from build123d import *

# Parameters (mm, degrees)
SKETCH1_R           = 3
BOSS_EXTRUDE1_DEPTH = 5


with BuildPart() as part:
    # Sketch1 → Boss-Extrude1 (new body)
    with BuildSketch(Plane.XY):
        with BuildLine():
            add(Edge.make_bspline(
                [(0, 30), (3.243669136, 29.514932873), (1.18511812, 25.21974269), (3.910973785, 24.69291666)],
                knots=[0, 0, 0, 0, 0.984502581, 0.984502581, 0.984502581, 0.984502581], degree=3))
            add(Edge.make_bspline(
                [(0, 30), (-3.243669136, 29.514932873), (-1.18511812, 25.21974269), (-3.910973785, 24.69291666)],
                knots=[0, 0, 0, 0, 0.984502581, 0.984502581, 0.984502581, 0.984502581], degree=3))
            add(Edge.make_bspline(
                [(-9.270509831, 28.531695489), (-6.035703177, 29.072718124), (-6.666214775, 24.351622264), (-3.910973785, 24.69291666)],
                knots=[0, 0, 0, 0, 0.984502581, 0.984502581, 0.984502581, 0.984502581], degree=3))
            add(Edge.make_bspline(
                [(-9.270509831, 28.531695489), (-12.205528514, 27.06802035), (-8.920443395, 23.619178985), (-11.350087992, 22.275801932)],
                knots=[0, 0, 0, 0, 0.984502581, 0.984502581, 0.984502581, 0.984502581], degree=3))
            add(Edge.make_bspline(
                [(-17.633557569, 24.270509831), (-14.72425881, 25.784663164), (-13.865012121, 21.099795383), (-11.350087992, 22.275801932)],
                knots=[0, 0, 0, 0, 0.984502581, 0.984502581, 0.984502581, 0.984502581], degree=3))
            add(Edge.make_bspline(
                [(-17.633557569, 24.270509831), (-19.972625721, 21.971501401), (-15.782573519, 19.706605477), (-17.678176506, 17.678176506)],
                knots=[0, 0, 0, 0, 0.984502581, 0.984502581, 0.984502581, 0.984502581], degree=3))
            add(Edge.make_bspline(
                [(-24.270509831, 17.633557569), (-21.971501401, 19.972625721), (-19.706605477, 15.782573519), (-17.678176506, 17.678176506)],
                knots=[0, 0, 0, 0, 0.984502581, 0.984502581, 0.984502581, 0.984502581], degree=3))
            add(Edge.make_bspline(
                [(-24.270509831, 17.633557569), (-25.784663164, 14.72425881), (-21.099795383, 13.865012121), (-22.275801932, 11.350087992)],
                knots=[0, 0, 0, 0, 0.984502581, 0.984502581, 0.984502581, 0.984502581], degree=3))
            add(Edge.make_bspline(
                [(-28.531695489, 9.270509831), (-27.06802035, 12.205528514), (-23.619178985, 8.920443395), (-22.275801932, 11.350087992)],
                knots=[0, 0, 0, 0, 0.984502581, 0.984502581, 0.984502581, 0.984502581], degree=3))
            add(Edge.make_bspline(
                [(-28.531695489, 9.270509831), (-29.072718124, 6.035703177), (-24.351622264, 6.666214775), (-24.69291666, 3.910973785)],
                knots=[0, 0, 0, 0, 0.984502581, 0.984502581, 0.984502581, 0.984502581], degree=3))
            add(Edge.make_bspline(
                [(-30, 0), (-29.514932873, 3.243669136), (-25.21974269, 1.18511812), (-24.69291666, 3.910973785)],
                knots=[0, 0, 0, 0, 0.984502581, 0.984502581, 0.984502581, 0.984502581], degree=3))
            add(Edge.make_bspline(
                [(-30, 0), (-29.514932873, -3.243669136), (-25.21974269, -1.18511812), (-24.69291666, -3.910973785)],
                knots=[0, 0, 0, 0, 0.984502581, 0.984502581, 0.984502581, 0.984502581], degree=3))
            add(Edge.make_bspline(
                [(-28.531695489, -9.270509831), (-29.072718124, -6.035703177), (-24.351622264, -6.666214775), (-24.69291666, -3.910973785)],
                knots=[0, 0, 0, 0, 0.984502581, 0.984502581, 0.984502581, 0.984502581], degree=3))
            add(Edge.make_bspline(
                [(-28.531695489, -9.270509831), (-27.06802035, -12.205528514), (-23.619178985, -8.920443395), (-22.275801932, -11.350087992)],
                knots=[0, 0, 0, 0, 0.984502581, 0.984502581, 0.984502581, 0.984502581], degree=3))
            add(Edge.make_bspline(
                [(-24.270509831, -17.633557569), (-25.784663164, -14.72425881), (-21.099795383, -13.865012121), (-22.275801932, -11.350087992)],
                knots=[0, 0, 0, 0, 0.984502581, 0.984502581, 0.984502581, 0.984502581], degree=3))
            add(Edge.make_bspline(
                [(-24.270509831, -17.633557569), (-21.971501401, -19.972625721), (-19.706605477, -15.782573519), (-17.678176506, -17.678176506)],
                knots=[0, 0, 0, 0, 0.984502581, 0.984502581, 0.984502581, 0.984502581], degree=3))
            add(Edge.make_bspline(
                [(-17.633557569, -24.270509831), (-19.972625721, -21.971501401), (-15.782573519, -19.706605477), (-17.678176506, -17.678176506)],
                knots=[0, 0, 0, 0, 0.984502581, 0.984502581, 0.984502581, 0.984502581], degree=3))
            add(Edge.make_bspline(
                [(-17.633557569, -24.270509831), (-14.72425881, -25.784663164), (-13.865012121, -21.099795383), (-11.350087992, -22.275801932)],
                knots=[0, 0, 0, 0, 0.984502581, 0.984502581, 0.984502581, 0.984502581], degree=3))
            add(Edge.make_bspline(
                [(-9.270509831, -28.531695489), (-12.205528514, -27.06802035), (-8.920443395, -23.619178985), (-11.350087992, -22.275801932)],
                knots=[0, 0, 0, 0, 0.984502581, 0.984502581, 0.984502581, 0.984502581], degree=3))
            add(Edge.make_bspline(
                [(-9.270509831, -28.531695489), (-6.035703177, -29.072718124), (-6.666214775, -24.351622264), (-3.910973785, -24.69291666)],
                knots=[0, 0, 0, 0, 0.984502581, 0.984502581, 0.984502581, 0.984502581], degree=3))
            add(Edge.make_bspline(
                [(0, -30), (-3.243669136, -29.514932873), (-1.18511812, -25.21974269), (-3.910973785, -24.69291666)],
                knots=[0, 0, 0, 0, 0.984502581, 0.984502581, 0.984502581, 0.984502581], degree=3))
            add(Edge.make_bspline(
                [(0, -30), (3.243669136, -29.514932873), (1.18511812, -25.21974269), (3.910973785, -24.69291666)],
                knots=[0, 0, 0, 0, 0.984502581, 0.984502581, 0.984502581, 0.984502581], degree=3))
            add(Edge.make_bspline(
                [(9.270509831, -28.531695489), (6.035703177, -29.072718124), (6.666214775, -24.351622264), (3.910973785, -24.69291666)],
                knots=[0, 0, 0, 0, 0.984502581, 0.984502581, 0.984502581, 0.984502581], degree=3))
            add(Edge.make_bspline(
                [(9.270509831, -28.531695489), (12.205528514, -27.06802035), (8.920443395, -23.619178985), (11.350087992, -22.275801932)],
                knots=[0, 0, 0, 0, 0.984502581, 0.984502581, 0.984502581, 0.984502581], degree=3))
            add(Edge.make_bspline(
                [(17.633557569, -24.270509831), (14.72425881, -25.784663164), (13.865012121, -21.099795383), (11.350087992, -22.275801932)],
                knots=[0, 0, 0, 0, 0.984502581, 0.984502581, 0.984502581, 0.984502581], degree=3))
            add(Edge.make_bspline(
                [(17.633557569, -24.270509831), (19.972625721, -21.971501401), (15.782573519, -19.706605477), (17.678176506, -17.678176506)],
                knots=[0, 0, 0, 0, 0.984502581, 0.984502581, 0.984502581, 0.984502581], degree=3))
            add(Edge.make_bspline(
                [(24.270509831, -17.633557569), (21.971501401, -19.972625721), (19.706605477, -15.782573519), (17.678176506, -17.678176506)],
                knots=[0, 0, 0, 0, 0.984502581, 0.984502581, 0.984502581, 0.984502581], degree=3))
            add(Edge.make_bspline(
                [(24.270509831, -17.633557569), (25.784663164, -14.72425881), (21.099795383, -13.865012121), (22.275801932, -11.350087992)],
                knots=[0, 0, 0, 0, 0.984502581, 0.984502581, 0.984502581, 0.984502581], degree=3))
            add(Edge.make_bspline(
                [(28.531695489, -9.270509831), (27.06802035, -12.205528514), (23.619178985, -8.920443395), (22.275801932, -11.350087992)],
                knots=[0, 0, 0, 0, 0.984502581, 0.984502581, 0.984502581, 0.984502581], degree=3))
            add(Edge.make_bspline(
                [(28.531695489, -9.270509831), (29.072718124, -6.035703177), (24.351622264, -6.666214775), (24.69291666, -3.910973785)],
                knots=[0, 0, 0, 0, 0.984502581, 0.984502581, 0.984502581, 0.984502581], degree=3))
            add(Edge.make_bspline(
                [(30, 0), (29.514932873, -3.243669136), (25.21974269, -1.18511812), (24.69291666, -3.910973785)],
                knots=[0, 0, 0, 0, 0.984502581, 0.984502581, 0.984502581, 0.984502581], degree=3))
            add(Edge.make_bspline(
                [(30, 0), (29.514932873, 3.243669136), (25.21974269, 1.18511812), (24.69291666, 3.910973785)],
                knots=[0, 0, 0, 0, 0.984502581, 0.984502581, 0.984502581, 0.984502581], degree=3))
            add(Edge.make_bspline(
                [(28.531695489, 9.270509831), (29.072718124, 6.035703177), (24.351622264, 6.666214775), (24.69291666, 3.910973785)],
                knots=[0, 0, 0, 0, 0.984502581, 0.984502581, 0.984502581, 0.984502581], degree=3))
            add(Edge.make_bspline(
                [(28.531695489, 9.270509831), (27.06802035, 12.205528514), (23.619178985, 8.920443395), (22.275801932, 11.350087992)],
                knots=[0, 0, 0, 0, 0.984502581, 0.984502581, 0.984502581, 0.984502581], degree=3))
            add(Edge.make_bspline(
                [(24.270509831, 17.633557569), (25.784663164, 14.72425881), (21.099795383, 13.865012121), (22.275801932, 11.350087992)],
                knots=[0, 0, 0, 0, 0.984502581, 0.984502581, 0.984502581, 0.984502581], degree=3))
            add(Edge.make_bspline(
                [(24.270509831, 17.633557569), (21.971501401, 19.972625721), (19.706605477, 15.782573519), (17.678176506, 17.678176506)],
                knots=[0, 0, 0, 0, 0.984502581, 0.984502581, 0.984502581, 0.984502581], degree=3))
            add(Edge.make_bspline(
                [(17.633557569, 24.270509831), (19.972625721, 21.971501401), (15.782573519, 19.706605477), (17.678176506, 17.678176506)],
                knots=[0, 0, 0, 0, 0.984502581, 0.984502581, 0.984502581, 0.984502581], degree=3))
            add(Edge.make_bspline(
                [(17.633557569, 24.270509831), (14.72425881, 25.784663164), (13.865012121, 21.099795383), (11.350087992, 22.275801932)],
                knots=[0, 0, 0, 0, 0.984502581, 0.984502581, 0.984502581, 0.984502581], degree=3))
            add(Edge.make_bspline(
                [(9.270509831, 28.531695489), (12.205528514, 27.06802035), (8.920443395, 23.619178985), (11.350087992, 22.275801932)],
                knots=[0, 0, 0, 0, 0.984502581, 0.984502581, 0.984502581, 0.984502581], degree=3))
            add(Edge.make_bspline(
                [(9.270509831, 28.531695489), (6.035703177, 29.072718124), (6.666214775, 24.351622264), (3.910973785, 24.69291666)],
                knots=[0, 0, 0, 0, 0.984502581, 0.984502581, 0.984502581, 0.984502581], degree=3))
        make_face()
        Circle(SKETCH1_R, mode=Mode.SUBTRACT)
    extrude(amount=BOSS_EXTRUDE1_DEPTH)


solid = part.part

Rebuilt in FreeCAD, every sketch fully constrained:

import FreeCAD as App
import Part
import Sketcher

V = App.Vector

doc = App.newDocument("Part")
body = doc.addObject("PartDesign::Body", "Body")

# Sketch on XY plane
sketch1 = body.newObject("Sketcher::SketchObject", "Sketch")
sketch1.AttachmentSupport = (doc.getObject("XY_Plane"), [""])
sketch1.MapMode = "FlatFace"
sketch1.addGeometry([
    Part.BSplineCurve([V(0, 30, 0), V(3.243669, 29.514933, 0), V(1.185118, 25.219743, 0), V(3.910974, 24.692917, 0)], [4, 4], [0, 0.984502581], False, 3, [1, 1, 1, 1], False),  # 0
    Part.BSplineCurve([V(0, 30, 0), V(-3.243669, 29.514933, 0), V(-1.185118, 25.219743, 0), V(-3.910974, 24.692917, 0)], [4, 4], [0, 0.984502581], False, 3, [1, 1, 1, 1], False),  # 1
    Part.BSplineCurve([V(-9.27051, 28.531695, 0), V(-6.035703, 29.072718, 0), V(-6.666215, 24.351622, 0), V(-3.910974, 24.692917, 0)], [4, 4], [0, 0.984502581], False, 3, [1, 1, 1, 1], False),  # 2
    Part.BSplineCurve([V(-9.27051, 28.531695, 0), V(-12.205529, 27.06802, 0), V(-8.920443, 23.619179, 0), V(-11.350088, 22.275802, 0)], [4, 4], [0, 0.984502581], False, 3, [1, 1, 1, 1], False),  # 3
    Part.BSplineCurve([V(-17.633558, 24.27051, 0), V(-14.724259, 25.784663, 0), V(-13.865012, 21.099795, 0), V(-11.350088, 22.275802, 0)], [4, 4], [0, 0.984502581], False, 3, [1, 1, 1, 1], False),  # 4
    Part.BSplineCurve([V(-17.633558, 24.27051, 0), V(-19.972626, 21.971501, 0), V(-15.782574, 19.706605, 0), V(-17.678177, 17.678177, 0)], [4, 4], [0, 0.984502581], False, 3, [1, 1, 1, 1], False),  # 5
    Part.BSplineCurve([V(-24.27051, 17.633558, 0), V(-21.971501, 19.972626, 0), V(-19.706605, 15.782574, 0), V(-17.678177, 17.678177, 0)], [4, 4], [0, 0.984502581], False, 3, [1, 1, 1, 1], False),  # 6
    Part.BSplineCurve([V(-24.27051, 17.633558, 0), V(-25.784663, 14.724259, 0), V(-21.099795, 13.865012, 0), V(-22.275802, 11.350088, 0)], [4, 4], [0, 0.984502581], False, 3, [1, 1, 1, 1], False),  # 7
    Part.BSplineCurve([V(-28.531695, 9.27051, 0), V(-27.06802, 12.205529, 0), V(-23.619179, 8.920443, 0), V(-22.275802, 11.350088, 0)], [4, 4], [0, 0.984502581], False, 3, [1, 1, 1, 1], False),  # 8
    Part.BSplineCurve([V(-28.531695, 9.27051, 0), V(-29.072718, 6.035703, 0), V(-24.351622, 6.666215, 0), V(-24.692917, 3.910974, 0)], [4, 4], [0, 0.984502581], False, 3, [1, 1, 1, 1], False),  # 9
    Part.BSplineCurve([V(-30, 0, 0), V(-29.514933, 3.243669, 0), V(-25.219743, 1.185118, 0), V(-24.692917, 3.910974, 0)], [4, 4], [0, 0.984502581], False, 3, [1, 1, 1, 1], False),  # 10
    Part.BSplineCurve([V(-30, 0, 0), V(-29.514933, -3.243669, 0), V(-25.219743, -1.185118, 0), V(-24.692917, -3.910974, 0)], [4, 4], [0, 0.984502581], False, 3, [1, 1, 1, 1], False),  # 11
    Part.BSplineCurve([V(-28.531695, -9.27051, 0), V(-29.072718, -6.035703, 0), V(-24.351622, -6.666215, 0), V(-24.692917, -3.910974, 0)], [4, 4], [0, 0.984502581], False, 3, [1, 1, 1, 1], False),  # 12
    Part.BSplineCurve([V(-28.531695, -9.27051, 0), V(-27.06802, -12.205529, 0), V(-23.619179, -8.920443, 0), V(-22.275802, -11.350088, 0)], [4, 4], [0, 0.984502581], False, 3, [1, 1, 1, 1], False),  # 13
    Part.BSplineCurve([V(-24.27051, -17.633558, 0), V(-25.784663, -14.724259, 0), V(-21.099795, -13.865012, 0), V(-22.275802, -11.350088, 0)], [4, 4], [0, 0.984502581], False, 3, [1, 1, 1, 1], False),  # 14
    Part.BSplineCurve([V(-24.27051, -17.633558, 0), V(-21.971501, -19.972626, 0), V(-19.706605, -15.782574, 0), V(-17.678177, -17.678177, 0)], [4, 4], [0, 0.984502581], False, 3, [1, 1, 1, 1], False),  # 15
    Part.BSplineCurve([V(-17.633558, -24.27051, 0), V(-19.972626, -21.971501, 0), V(-15.782574, -19.706605, 0), V(-17.678177, -17.678177, 0)], [4, 4], [0, 0.984502581], False, 3, [1, 1, 1, 1], False),  # 16
    Part.BSplineCurve([V(-17.633558, -24.27051, 0), V(-14.724259, -25.784663, 0), V(-13.865012, -21.099795, 0), V(-11.350088, -22.275802, 0)], [4, 4], [0, 0.984502581], False, 3, [1, 1, 1, 1], False),  # 17
    Part.BSplineCurve([V(-9.27051, -28.531695, 0), V(-12.205529, -27.06802, 0), V(-8.920443, -23.619179, 0), V(-11.350088, -22.275802, 0)], [4, 4], [0, 0.984502581], False, 3, [1, 1, 1, 1], False),  # 18
    Part.BSplineCurve([V(-9.27051, -28.531695, 0), V(-6.035703, -29.072718, 0), V(-6.666215, -24.351622, 0), V(-3.910974, -24.692917, 0)], [4, 4], [0, 0.984502581], False, 3, [1, 1, 1, 1], False),  # 19
    Part.BSplineCurve([V(0, -30, 0), V(-3.243669, -29.514933, 0), V(-1.185118, -25.219743, 0), V(-3.910974, -24.692917, 0)], [4, 4], [0, 0.984502581], False, 3, [1, 1, 1, 1], False),  # 20
    Part.BSplineCurve([V(0, -30, 0), V(3.243669, -29.514933, 0), V(1.185118, -25.219743, 0), V(3.910974, -24.692917, 0)], [4, 4], [0, 0.984502581], False, 3, [1, 1, 1, 1], False),  # 21
    Part.BSplineCurve([V(9.27051, -28.531695, 0), V(6.035703, -29.072718, 0), V(6.666215, -24.351622, 0), V(3.910974, -24.692917, 0)], [4, 4], [0, 0.984502581], False, 3, [1, 1, 1, 1], False),  # 22
    Part.BSplineCurve([V(9.27051, -28.531695, 0), V(12.205529, -27.06802, 0), V(8.920443, -23.619179, 0), V(11.350088, -22.275802, 0)], [4, 4], [0, 0.984502581], False, 3, [1, 1, 1, 1], False),  # 23
    Part.BSplineCurve([V(17.633558, -24.27051, 0), V(14.724259, -25.784663, 0), V(13.865012, -21.099795, 0), V(11.350088, -22.275802, 0)], [4, 4], [0, 0.984502581], False, 3, [1, 1, 1, 1], False),  # 24
    Part.BSplineCurve([V(17.633558, -24.27051, 0), V(19.972626, -21.971501, 0), V(15.782574, -19.706605, 0), V(17.678177, -17.678177, 0)], [4, 4], [0, 0.984502581], False, 3, [1, 1, 1, 1], False),  # 25
    Part.BSplineCurve([V(24.27051, -17.633558, 0), V(21.971501, -19.972626, 0), V(19.706605, -15.782574, 0), V(17.678177, -17.678177, 0)], [4, 4], [0, 0.984502581], False, 3, [1, 1, 1, 1], False),  # 26
    Part.BSplineCurve([V(24.27051, -17.633558, 0), V(25.784663, -14.724259, 0), V(21.099795, -13.865012, 0), V(22.275802, -11.350088, 0)], [4, 4], [0, 0.984502581], False, 3, [1, 1, 1, 1], False),  # 27
    Part.BSplineCurve([V(28.531695, -9.27051, 0), V(27.06802, -12.205529, 0), V(23.619179, -8.920443, 0), V(22.275802, -11.350088, 0)], [4, 4], [0, 0.984502581], False, 3, [1, 1, 1, 1], False),  # 28
    Part.BSplineCurve([V(28.531695, -9.27051, 0), V(29.072718, -6.035703, 0), V(24.351622, -6.666215, 0), V(24.692917, -3.910974, 0)], [4, 4], [0, 0.984502581], False, 3, [1, 1, 1, 1], False),  # 29
    Part.BSplineCurve([V(30, 0, 0), V(29.514933, -3.243669, 0), V(25.219743, -1.185118, 0), V(24.692917, -3.910974, 0)], [4, 4], [0, 0.984502581], False, 3, [1, 1, 1, 1], False),  # 30
    Part.BSplineCurve([V(30, 0, 0), V(29.514933, 3.243669, 0), V(25.219743, 1.185118, 0), V(24.692917, 3.910974, 0)], [4, 4], [0, 0.984502581], False, 3, [1, 1, 1, 1], False),  # 31
    Part.BSplineCurve([V(28.531695, 9.27051, 0), V(29.072718, 6.035703, 0), V(24.351622, 6.666215, 0), V(24.692917, 3.910974, 0)], [4, 4], [0, 0.984502581], False, 3, [1, 1, 1, 1], False),  # 32
    Part.BSplineCurve([V(28.531695, 9.27051, 0), V(27.06802, 12.205529, 0), V(23.619179, 8.920443, 0), V(22.275802, 11.350088, 0)], [4, 4], [0, 0.984502581], False, 3, [1, 1, 1, 1], False),  # 33
    Part.BSplineCurve([V(24.27051, 17.633558, 0), V(25.784663, 14.724259, 0), V(21.099795, 13.865012, 0), V(22.275802, 11.350088, 0)], [4, 4], [0, 0.984502581], False, 3, [1, 1, 1, 1], False),  # 34
    Part.BSplineCurve([V(24.27051, 17.633558, 0), V(21.971501, 19.972626, 0), V(19.706605, 15.782574, 0), V(17.678177, 17.678177, 0)], [4, 4], [0, 0.984502581], False, 3, [1, 1, 1, 1], False),  # 35
    Part.BSplineCurve([V(17.633558, 24.27051, 0), V(19.972626, 21.971501, 0), V(15.782574, 19.706605, 0), V(17.678177, 17.678177, 0)], [4, 4], [0, 0.984502581], False, 3, [1, 1, 1, 1], False),  # 36
    Part.BSplineCurve([V(17.633558, 24.27051, 0), V(14.724259, 25.784663, 0), V(13.865012, 21.099795, 0), V(11.350088, 22.275802, 0)], [4, 4], [0, 0.984502581], False, 3, [1, 1, 1, 1], False),  # 37
    Part.BSplineCurve([V(9.27051, 28.531695, 0), V(12.205529, 27.06802, 0), V(8.920443, 23.619179, 0), V(11.350088, 22.275802, 0)], [4, 4], [0, 0.984502581], False, 3, [1, 1, 1, 1], False),  # 38
    Part.BSplineCurve([V(9.27051, 28.531695, 0), V(6.035703, 29.072718, 0), V(6.666215, 24.351622, 0), V(3.910974, 24.692917, 0)], [4, 4], [0, 0.984502581], False, 3, [1, 1, 1, 1], False),  # 39
    Part.Circle(V(0, 0, 0), V(0, 0, 1), 3),  # 40
], False)
sketch1.addConstraint([
    Sketcher.Constraint("Block", 0),
    Sketcher.Constraint("Block", 1),
    Sketcher.Constraint("Block", 2),
    Sketcher.Constraint("Block", 3),
    Sketcher.Constraint("Block", 4),
    Sketcher.Constraint("Block", 5),
    Sketcher.Constraint("Block", 6),
    Sketcher.Constraint("Block", 7),
    Sketcher.Constraint("Block", 8),
    Sketcher.Constraint("Block", 9),
    Sketcher.Constraint("Block", 10),
    Sketcher.Constraint("Block", 11),
    Sketcher.Constraint("Block", 12),
    Sketcher.Constraint("Block", 13),
    Sketcher.Constraint("Block", 14),
    Sketcher.Constraint("Block", 15),
    Sketcher.Constraint("Block", 16),
    Sketcher.Constraint("Block", 17),
    Sketcher.Constraint("Block", 18),
    Sketcher.Constraint("Block", 19),
    Sketcher.Constraint("Block", 20),
    Sketcher.Constraint("Block", 21),
    Sketcher.Constraint("Block", 22),
    Sketcher.Constraint("Block", 23),
    Sketcher.Constraint("Block", 24),
    Sketcher.Constraint("Block", 25),
    Sketcher.Constraint("Block", 26),
    Sketcher.Constraint("Block", 27),
    Sketcher.Constraint("Block", 28),
    Sketcher.Constraint("Block", 29),
    Sketcher.Constraint("Block", 30),
    Sketcher.Constraint("Block", 31),
    Sketcher.Constraint("Block", 32),
    Sketcher.Constraint("Block", 33),
    Sketcher.Constraint("Block", 34),
    Sketcher.Constraint("Block", 35),
    Sketcher.Constraint("Block", 36),
    Sketcher.Constraint("Block", 37),
    Sketcher.Constraint("Block", 38),
    Sketcher.Constraint("Block", 39),
    Sketcher.Constraint("Coincident", 40, 3, -1, 1),
    Sketcher.Constraint("Diameter", 40, 6.0),
])
pad1 = body.newObject("PartDesign::Pad", "Pad")
pad1.Profile = sketch1
pad1.Length = 5

doc.recompute()
